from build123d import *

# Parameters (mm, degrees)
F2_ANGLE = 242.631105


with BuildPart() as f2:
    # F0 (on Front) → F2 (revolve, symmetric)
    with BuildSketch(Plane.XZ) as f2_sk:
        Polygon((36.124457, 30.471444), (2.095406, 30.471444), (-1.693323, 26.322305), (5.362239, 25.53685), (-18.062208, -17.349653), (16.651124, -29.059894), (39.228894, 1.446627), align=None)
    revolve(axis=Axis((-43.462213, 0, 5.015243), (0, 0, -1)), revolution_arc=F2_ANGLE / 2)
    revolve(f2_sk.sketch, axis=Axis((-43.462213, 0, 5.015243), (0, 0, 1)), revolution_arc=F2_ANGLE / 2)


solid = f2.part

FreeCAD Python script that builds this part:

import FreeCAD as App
import Part
import Sketcher
from FreeCAD import Vector


def add_polygon(sketch, points):
    """Adds a closed chain of lines whose ends are joined by coincident constraints."""
    first, n = sketch.GeometryCount, len(points)
    for a, b in zip(points, points[1:] + points[:1]):
        sketch.addGeometry(Part.LineSegment(App.Vector(*a, 0), App.Vector(*b, 0)), False)
    for i in range(n):
        sketch.addConstraint(Sketcher.Constraint("Coincident", first + i, 2, first + (i + 1) % n, 1))

doc = App.newDocument("Part")
body = doc.addObject("PartDesign::Body", "Body")

# Sketch on XZ plane
sketch1 = body.newObject("Sketcher::SketchObject", "Sketch")
sketch1.AttachmentSupport = (doc.getObject("XZ_Plane"), [""])
sketch1.MapMode = "FlatFace"
add_polygon(sketch1, [(36, 30), (2, 30), (-2, 26), (5, 26), (-18, -17), (17, -29), (39, 1)])  # lines 0-6
sketch1.addGeometry(Part.LineSegment(Vector(-43, 30, 0), Vector(-43, -29, 0)), True)  # axis
sketch1.addConstraint(Sketcher.Constraint("Horizontal", 0))
sketch1.addConstraint(Sketcher.Constraint("Vertical", 7))
sketch1.addConstraint(Sketcher.Constraint("Horizontal", 6, 2, 7, 1))
sketch1.addConstraint(Sketcher.Constraint("Horizontal", 4, 2, 7, 2))
sketch1.addConstraint(Sketcher.Constraint("Distance", 4, 36.635299))
sketch1.addConstraint(Sketcher.Constraint("DistanceX", 0, 2, 0, 1, 34.029051))
sketch1.addConstraint(Sketcher.Constraint("DistanceY", 7, 2, 7, 1, 59.531338))
sketch1.addConstraint(Sketcher.Constraint("DistanceY", 4, 2, 1, 2, 55.382199))
sketch1.addConstraint(Sketcher.Constraint("DistanceX", 3, 2, 5, 2, 57.291102))
sketch1.addConstraint(Sketcher.Constraint("Distance", 5, 37.952648))
sketch1.addConstraint(Sketcher.Constraint("DistanceX", -1, 1, 2, 2, 5.362239))
sketch1.addConstraint(Sketcher.Constraint("DistanceY", -1, 1, 2, 2, 25.53685))
sketch1.addConstraint(Sketcher.Constraint("DistanceX", 1, 2, 0, 2, 3.788729))
sketch1.addConstraint(Sketcher.Constraint("DistanceY", 3, 2, 1, 2, 43.671958))
sketch1.addConstraint(Sketcher.Constraint("DistanceX", 2, 2, 6, 2, 30.762218))
sketch1.addConstraint(Sketcher.Constraint("DistanceX", 7, 1, 1, 2, 41.76889))
sketch1.addConstraint(Sketcher.Constraint("Distance", 2, 7.099147))
sketch1.addConstraint(Sketcher.Constraint("Distance", 3, 48.866725))
revolution = body.newObject("PartDesign::Revolution", "Revolution")
revolution.Profile = sketch1
revolution.ReferenceAxis = (sketch1, ["Axis0"])
revolution.Angle = 121.315552

# Sketch on XZ plane
sketch2 = body.newObject("Sketcher::SketchObject", "Sketch001")
sketch2.AttachmentSupport = (doc.getObject("XZ_Plane"), [""])
sketch2.MapMode = "FlatFace"
add_polygon(sketch2, [(36, 30), (2, 30), (-2, 26), (5, 26), (-18, -17), (17, -29), (39, 1)])  # lines 0-6
sketch2.addGeometry(Part.LineSegment(Vector(-43, -29, 0), Vector(-43, 30, 0)), True)  # axis
sketch2.addConstraint(Sketcher.Constraint("Horizontal", 0))
sketch2.addConstraint(Sketcher.Constraint("Vertical", 7))
sketch2.addConstraint(Sketcher.Constraint("Horizontal", 4, 2, 7, 1))
sketch2.addConstraint(Sketcher.Constraint("Horizontal", 6, 2, 7, 2))
sketch2.addConstraint(Sketcher.Constraint("Distance", 4, 36.635299))
sketch2.addConstraint(Sketcher.Constraint("DistanceX", 0, 2, 0, 1, 34.029051))
sketch2.addConstraint(Sketcher.Constraint("DistanceY", 7, 1, 7, 2, 59.531338))
sketch2.addConstraint(Sketcher.Constraint("DistanceY", 4, 2, 1, 2, 55.382199))
sketch2.addConstraint(Sketcher.Constraint("DistanceX", 3, 2, 5, 2, 57.291102))
sketch2.addConstraint(Sketcher.Constraint("Distance", 5, 37.952648))
sketch2.addConstraint(Sketcher.Constraint("DistanceX", -1, 1, 2, 2, 5.362239))
sketch2.addConstraint(Sketcher.Constraint("DistanceY", -1, 1, 2, 2, 25.53685))
sketch2.addConstraint(Sketcher.Constraint("DistanceX", 1, 2, 0, 2, 3.788729))
sketch2.addConstraint(Sketcher.Constraint("DistanceY", 3, 2, 1, 2, 43.671958))
sketch2.addConstraint(Sketcher.Constraint("DistanceX", 2, 2, 6, 2, 30.762218))
sketch2.addConstraint(Sketcher.Constraint("DistanceX", 7, 1, 1, 2, 41.76889))
sketch2.addConstraint(Sketcher.Constraint("Distance", 2, 7.099147))
sketch2.addConstraint(Sketcher.Constraint("Distance", 3, 48.866725))
revolution2 = body.newObject("PartDesign::Revolution", "Revolution001")
revolution2.Profile = sketch2
revolution2.ReferenceAxis = (sketch2, ["Axis0"])
revolution2.Angle = 121.315552

doc.recompute()
